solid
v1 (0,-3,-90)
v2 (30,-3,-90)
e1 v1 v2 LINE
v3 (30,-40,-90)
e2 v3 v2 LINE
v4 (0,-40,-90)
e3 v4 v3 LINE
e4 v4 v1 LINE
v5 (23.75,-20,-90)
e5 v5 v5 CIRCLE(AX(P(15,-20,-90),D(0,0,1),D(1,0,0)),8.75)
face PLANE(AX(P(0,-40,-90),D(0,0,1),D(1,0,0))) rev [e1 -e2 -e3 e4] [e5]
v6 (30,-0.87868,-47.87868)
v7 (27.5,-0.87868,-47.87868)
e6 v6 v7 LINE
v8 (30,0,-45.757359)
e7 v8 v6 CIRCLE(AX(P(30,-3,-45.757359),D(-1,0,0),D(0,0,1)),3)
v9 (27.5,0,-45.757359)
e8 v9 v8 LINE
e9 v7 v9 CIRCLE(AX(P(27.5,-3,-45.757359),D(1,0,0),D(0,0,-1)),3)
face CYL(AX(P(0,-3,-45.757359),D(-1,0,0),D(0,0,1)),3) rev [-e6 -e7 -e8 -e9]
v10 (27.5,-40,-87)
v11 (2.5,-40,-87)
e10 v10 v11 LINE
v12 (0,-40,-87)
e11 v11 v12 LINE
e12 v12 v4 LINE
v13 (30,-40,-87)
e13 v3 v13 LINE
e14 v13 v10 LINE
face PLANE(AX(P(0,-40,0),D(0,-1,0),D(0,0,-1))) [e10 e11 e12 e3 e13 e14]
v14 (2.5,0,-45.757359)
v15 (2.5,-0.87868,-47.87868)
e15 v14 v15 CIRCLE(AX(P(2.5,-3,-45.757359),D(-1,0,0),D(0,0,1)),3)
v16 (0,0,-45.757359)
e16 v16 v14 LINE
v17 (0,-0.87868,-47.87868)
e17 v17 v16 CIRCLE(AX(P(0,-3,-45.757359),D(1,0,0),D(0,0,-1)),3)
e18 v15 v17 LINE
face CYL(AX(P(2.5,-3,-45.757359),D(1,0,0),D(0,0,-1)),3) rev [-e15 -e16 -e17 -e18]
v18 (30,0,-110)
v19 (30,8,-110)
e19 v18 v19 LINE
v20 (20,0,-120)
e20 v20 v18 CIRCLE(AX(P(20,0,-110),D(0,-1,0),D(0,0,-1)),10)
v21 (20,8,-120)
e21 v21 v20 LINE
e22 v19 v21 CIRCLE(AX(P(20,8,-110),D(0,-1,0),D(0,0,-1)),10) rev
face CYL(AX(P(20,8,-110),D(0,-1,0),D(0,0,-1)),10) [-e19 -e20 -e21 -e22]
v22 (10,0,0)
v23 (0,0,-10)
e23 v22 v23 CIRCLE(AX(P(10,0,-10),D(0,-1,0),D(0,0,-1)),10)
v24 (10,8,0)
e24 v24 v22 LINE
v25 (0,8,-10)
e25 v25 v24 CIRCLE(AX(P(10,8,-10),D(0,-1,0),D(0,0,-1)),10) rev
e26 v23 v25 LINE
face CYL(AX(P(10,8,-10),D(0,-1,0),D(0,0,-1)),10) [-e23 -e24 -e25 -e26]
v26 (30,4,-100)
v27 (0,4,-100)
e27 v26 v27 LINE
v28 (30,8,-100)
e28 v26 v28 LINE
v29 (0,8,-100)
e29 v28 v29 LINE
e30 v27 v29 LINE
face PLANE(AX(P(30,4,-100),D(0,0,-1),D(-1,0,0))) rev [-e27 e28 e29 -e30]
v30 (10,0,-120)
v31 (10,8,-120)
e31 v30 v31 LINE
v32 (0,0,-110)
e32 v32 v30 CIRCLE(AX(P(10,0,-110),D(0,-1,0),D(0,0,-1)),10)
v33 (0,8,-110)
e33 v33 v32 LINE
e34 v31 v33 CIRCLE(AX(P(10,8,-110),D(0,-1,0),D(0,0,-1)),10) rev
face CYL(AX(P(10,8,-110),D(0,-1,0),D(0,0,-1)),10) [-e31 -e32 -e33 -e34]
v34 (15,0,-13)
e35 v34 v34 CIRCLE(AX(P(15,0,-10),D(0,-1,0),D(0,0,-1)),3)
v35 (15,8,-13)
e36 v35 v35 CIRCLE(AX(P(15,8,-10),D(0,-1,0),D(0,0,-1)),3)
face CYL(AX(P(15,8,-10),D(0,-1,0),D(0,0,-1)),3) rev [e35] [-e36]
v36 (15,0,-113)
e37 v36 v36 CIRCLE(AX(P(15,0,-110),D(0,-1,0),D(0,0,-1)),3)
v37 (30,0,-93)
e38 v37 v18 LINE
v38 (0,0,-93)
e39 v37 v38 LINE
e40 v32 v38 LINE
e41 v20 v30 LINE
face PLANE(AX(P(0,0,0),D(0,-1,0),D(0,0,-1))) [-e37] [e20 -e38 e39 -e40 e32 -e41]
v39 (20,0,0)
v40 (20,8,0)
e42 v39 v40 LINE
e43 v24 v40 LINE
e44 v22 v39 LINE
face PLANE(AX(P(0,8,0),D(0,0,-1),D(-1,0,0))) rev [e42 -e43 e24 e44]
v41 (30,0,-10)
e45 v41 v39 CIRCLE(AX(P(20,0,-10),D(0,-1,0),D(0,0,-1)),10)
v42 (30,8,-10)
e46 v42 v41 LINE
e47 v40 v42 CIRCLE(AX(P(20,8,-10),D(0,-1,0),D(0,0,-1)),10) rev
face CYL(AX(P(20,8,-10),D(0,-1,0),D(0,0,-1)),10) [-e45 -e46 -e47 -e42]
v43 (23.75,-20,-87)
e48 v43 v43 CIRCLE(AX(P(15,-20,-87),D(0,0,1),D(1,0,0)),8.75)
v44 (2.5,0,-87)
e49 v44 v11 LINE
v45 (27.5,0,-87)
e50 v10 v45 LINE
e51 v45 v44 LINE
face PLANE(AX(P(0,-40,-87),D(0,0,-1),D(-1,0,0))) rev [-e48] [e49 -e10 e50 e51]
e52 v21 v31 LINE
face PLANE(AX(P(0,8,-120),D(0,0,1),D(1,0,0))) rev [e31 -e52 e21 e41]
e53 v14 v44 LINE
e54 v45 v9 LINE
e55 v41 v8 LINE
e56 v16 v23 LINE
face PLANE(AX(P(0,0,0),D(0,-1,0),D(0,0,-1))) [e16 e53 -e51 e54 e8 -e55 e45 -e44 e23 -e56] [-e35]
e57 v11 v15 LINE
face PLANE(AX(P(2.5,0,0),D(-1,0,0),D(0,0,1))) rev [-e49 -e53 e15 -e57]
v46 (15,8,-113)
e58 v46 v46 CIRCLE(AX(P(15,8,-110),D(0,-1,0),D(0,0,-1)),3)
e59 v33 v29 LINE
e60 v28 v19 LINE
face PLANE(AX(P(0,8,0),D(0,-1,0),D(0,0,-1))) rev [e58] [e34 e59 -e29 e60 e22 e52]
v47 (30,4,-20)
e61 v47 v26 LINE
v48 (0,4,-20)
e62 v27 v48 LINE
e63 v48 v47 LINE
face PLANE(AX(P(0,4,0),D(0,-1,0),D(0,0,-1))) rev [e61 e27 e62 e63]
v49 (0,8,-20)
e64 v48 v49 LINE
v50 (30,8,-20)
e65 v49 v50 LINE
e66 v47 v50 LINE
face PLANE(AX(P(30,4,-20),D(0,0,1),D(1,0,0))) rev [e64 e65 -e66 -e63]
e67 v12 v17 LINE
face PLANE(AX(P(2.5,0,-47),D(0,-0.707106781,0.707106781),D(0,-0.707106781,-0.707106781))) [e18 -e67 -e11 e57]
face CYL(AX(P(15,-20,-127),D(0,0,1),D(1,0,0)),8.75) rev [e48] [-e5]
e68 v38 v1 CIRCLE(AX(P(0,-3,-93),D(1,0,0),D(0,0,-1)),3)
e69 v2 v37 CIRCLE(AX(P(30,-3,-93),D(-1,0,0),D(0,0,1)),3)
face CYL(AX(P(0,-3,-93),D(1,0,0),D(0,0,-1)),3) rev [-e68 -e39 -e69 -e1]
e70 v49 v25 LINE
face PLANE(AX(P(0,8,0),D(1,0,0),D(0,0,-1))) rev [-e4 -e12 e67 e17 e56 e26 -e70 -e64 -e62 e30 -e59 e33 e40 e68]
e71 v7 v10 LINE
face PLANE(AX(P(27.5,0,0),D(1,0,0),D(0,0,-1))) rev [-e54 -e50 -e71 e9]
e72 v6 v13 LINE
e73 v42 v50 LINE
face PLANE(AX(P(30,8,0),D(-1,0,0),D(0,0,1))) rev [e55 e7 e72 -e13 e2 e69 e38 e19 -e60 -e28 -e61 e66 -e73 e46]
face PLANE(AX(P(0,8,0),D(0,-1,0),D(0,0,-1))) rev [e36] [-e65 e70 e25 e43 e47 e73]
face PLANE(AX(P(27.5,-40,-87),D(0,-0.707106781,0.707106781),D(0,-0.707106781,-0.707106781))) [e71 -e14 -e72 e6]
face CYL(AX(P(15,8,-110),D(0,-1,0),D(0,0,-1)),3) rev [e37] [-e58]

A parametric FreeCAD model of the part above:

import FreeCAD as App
import Part
import Sketcher
from FreeCAD import Vector
Q = App.Units.Quantity


def edges_at(feature, points):
    """Names of the edges that pass closest to the given points."""
    edges = feature.Shape.Edges
    near = lambda p: min(range(len(edges)), key=lambda i: edges[i].distToShape(Part.Vertex(*p))[0])
    return sorted({f"Edge{near(p) + 1}" for p in points})


def add_polygon(sketch, points):
    """Adds a closed chain of lines whose ends are joined by coincident constraints."""
    first, n = sketch.GeometryCount, len(points)
    for a, b in zip(points, points[1:] + points[:1]):
        sketch.addGeometry(Part.LineSegment(App.Vector(*a, 0), App.Vector(*b, 0)), False)
    for i in range(n):
        sketch.addConstraint(Sketcher.Constraint("Coincident", first + i, 2, first + (i + 1) % n, 1))

doc = App.newDocument("Part")
body = doc.addObject("PartDesign::Body", "Body")

sketch1 = body.newObject("Sketcher::SketchObject", "Sketch")
sketch1.AttachmentSupport = (doc.getObject("XZ_Plane"), [""])
sketch1.MapMode = "FlatFace"
add_polygon(sketch1, [(0, -120), (0, 0), (30, 0), (30, -120)])
sketch1.addConstraint([
    Sketcher.Constraint("Vertical", 0),
    Sketcher.Constraint("Horizontal", 1),
    Sketcher.Constraint("Vertical", 2),
    Sketcher.Constraint("Horizontal", 3),
    Sketcher.Constraint("Coincident", 0, 2, -1, 1),
    Sketcher.Constraint("DistanceX", 1, 1, 1, 2, Q("30 mm")),
    Sketcher.Constraint("DistanceY", 0, 1, 0, 2, Q("120 mm")),
])
pad1 = body.newObject("PartDesign::Pad", "Pad")
pad1.Profile = sketch1
pad1.Length = 8
pad1.Reversed = True

sketch2 = body.newObject("Sketcher::SketchObject", "Sketch001")
sketch2.AttachmentSupport = (doc.getObject("XZ_Plane"), [""])
sketch2.MapMode = "FlatFace"
sketch2.AttachmentOffset = App.Placement(Vector(0, 0, -8), App.Rotation())
add_polygon(sketch2, [(0, -100), (0, -20), (30, -20), (30, -100)])
sketch2.addConstraint([
    Sketcher.Constraint("Vertical", 0),
    Sketcher.Constraint("Horizontal", 1),
    Sketcher.Constraint("Vertical", 2),
    Sketcher.Constraint("Horizontal", 3),
    Sketcher.Constraint("PointOnObject", 0, 2, -2),
    Sketcher.Constraint("DistanceX", 1, 1, 1, 2, Q("30 mm")),
    Sketcher.Constraint("DistanceY", 0, 1, 0, 2, Q("80 mm")),
    Sketcher.Constraint("DistanceY", 0, 2, -1, 1, Q("20 mm")),
])
pocket1 = body.newObject("PartDesign::Pocket", "Pocket")
pocket1.Profile = sketch2
pocket1.Length = 4
pocket1.Reversed = True

sketch3 = body.newObject("Sketcher::SketchObject", "Sketch002")
sketch3.AttachmentSupport = (doc.getObject("XZ_Plane"), [""])
sketch3.MapMode = "FlatFace"
add_polygon(sketch3, [(0, -87), (0, -90), (30, -90), (30, -87)])
sketch3.addConstraint([
    Sketcher.Constraint("Vertical", 0),
    Sketcher.Constraint("Horizontal", 1),
    Sketcher.Constraint("Vertical", 2),
    Sketcher.Constraint("Horizontal", 3),
    Sketcher.Constraint("PointOnObject", 0, 2, -2),
    Sketcher.Constraint("DistanceX", 1, 1, 1, 2, Q("30 mm")),
    Sketcher.Constraint("DistanceY", 0, 2, 0, 1, Q("3 mm")),
    Sketcher.Constraint("DistanceY", 0, 2, -1, 1, Q("90 mm")),
])
pad2 = body.newObject("PartDesign::Pad", "Pad001")
pad2.Profile = sketch3
pad2.Length = 40

sketch4 = body.newObject("Sketcher::SketchObject", "Sketch003")
sketch4.AttachmentSupport = (doc.getObject("XY_Plane"), [""])
sketch4.MapMode = "FlatFace"
sketch4.AttachmentOffset = App.Placement(Vector(0, 0, -87), App.Rotation())
sketch4.addGeometry(Part.Circle(Vector(15, -20, 0), Vector(0, 0, 1), 8.75), False)
sketch4.addConstraint([
    Sketcher.Constraint("Diameter", 0, Q("17.5 mm")),
    Sketcher.Constraint("DistanceX", -1, 1, 0, 3, Q("15 mm")),
    Sketcher.Constraint("DistanceY", 0, 3, -1, 1, Q("20 mm")),
])
pocket2 = body.newObject("PartDesign::Pocket", "Pocket001")
pocket2.Profile = sketch4
pocket2.Length = 40

sketch5 = body.newObject("Sketcher::SketchObject", "Sketch004")
sketch5.AttachmentSupport = (doc.getObject("YZ_Plane"), [""])
sketch5.MapMode = "FlatFace"
sketch5.AttachmentOffset = App.Placement(Vector(0, 0, 30), App.Rotation())
add_polygon(sketch5, [(0, -47), (-40, -87), (0, -87)])
sketch5.addConstraint([
    Sketcher.Constraint("Horizontal", 1),
    Sketcher.Constraint("Vertical", 2),
    Sketcher.Constraint("PointOnObject", 1, 2, -2),
    Sketcher.Constraint("Equal", 1, 2),
    Sketcher.Constraint("DistanceX", 1, 1, 1, 2, Q("40 mm")),
    Sketcher.Constraint("DistanceY", 0, 2, -1, 1, Q("87 mm")),
])
pad3 = body.newObject("PartDesign::Pad", "Pad002")
pad3.Profile = sketch5
pad3.Length = 2.5
pad3.Reversed = True

sketch6 = body.newObject("Sketcher::SketchObject", "Sketch005")
sketch6.AttachmentSupport = (doc.getObject("YZ_Plane"), [""])
sketch6.MapMode = "FlatFace"
add_polygon(sketch6, [(-40, -87), (0, -47), (0, -87)])
sketch6.addConstraint([
    Sketcher.Constraint("Vertical", 1),
    Sketcher.Constraint("Horizontal", 2),
    Sketcher.Constraint("PointOnObject", 0, 2, -2),
    Sketcher.Constraint("Equal", 2, 1),
    Sketcher.Constraint("DistanceX", 2, 2, 2, 1, Q("40 mm")),
    Sketcher.Constraint("DistanceY", 0, 2, -1, 1, Q("47 mm")),
])
pad4 = body.newObject("PartDesign::Pad", "Pad003")
pad4.Profile = sketch6
pad4.Length = 2.5

sketch7 = body.newObject("Sketcher::SketchObject", "Sketch006")
sketch7.AttachmentSupport = (doc.getObject("XZ_Plane"), [""])
sketch7.MapMode = "FlatFace"
sketch7.addGeometry([
    Part.Circle(Vector(15, -10, 0), Vector(0, 0, 1), 3),
    Part.Circle(Vector(15, -110, 0), Vector(0, 0, 1), 3),
], False)
sketch7.addConstraint([
    Sketcher.Constraint("Equal", 0, 1),
    Sketcher.Constraint("Vertical", 0, 3, 1, 3),
    Sketcher.Constraint("Diameter", 0, Q("6 mm")),
    Sketcher.Constraint("DistanceX", -1, 1, 0, 3, Q("15 mm")),
    Sketcher.Constraint("DistanceY", 0, 3, -1, 1, Q("10 mm")),
    Sketcher.Constraint("DistanceY", 1, 3, -1, 1, Q("110 mm")),
])
pocket3 = body.newObject("PartDesign::Pocket", "Pocket002")
pocket3.Profile = sketch7
pocket3.Type = "ThroughAll"
doc.recompute()

fillet = body.newObject("PartDesign::Fillet", "Fillet")
fillet.Base = (pocket3, edges_at(pocket3, [
    (0, 4, -120),
    (30, 4, -120),
    (30, 4, 0),
    (0, 4, 0),
]))
fillet.Radius = 10
doc.recompute()

fillet2 = body.newObject("PartDesign::Fillet", "Fillet001")
fillet2.Base = (fillet, edges_at(fillet, [(15, 0, -90)]))
fillet2.Radius = 3
doc.recompute()

fillet3 = body.newObject("PartDesign::Fillet", "Fillet002")
fillet3.Base = (fillet2, edges_at(fillet2, [(28.75, 0, -47), (1.25, 0, -47)]))
fillet3.Radius = 3

doc.recompute()
